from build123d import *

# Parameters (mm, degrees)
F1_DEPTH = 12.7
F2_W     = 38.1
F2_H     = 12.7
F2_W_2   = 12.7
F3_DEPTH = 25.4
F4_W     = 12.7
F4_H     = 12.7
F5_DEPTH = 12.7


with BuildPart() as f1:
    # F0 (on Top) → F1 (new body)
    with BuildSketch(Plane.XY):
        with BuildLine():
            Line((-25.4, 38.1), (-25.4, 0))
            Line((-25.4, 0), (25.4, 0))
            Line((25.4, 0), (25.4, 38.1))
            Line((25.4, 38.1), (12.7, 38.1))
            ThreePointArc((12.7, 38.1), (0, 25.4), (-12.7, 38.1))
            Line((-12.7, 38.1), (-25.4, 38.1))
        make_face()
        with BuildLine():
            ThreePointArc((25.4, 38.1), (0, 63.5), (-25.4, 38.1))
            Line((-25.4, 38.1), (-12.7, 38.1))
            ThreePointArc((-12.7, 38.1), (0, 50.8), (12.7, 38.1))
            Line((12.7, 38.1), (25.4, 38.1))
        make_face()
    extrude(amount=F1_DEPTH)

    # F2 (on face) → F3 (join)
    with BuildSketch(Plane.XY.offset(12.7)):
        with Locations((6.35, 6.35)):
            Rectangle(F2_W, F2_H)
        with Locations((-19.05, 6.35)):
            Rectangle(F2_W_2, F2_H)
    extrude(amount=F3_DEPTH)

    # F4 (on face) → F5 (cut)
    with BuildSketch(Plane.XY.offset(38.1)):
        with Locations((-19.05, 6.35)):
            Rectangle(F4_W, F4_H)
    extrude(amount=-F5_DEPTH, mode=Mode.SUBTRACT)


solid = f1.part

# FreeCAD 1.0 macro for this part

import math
import FreeCAD as App
import Part
import Sketcher
Q = App.Units.Quantity


def add_polygon(sketch, points):
    """Adds a closed chain of lines whose ends are joined by coincident constraints."""
    first, n = sketch.GeometryCount, len(points)
    for a, b in zip(points, points[1:] + points[:1]):
        sketch.addGeometry(Part.LineSegment(App.Vector(*a, 0), App.Vector(*b, 0)), False)
    for i in range(n):
        sketch.addConstraint(Sketcher.Constraint("Coincident", first + i, 2, first + (i + 1) % n, 1))

doc = App.newDocument("Part")
body = doc.addObject("PartDesign::Body", "Body")

sketch1 = doc.addObject("Sketcher::SketchObject", "Sketch")
body.addObject(sketch1)
sketch1.AttachmentSupport = (doc.XY_Plane, [""])
sketch1.MapMode = "FlatFace"
sketch1.addGeometry([
    Part.LineSegment(App.Vector(-25, 38, 0), App.Vector(-25, 0, 0)),
    Part.LineSegment(App.Vector(-25, 0, 0), App.Vector(25, 0, 0)),
    Part.LineSegment(App.Vector(25, 0, 0), App.Vector(25, 38, 0)),
    Part.ArcOfCircle(Part.Circle(App.Vector(0, 38, 0), App.Vector(0, 0, 1), 25), math.radians(0), math.radians(180)),
    Part.Circle(App.Vector(0, 38, 0), App.Vector(0, 0, 1), 13),
], False)
sketch1.addConstraint([
    Sketcher.Constraint("Coincident", 0, 2, 1, 1),
    Sketcher.Constraint("Coincident", 1, 2, 2, 1),
    Sketcher.Constraint("Tangent", 2, 2, 3, 1),
    Sketcher.Constraint("Tangent", 3, 2, 0, 1),
    Sketcher.Constraint("Vertical", 0),
    Sketcher.Constraint("Horizontal", 1),
    Sketcher.Constraint("Vertical", 2),
    Sketcher.Constraint("Coincident", 4, 3, 3, 3),
    Sketcher.Constraint("Symmetric", 0, 2, 1, 2, -1, 1),
    Sketcher.Constraint("Diameter", 4, Q("1 in")),
    Sketcher.Constraint("Radius", 3, Q("1 in")),
    Sketcher.Constraint("DistanceY", 0, 2, 0, 1, Q("1.5 in")),
])
pad1 = doc.addObject("PartDesign::Pad", "Pad")
body.addObject(pad1)
pad1.Profile = sketch1
pad1.Length = Q("0.5 in")

sketch2 = doc.addObject("Sketcher::SketchObject", "Sketch001")
body.addObject(sketch2)
sketch2.AttachmentSupport = (doc.XY_Plane, [""])
sketch2.MapMode = "FlatFace"
sketch2.AttachmentOffset = App.Placement(App.Vector(0, 0, 0.5 * 25.4), App.Rotation())
add_polygon(sketch2, [(25, 0), (25, 13), (-25, 13), (-25, 0)])
sketch2.addConstraint([
    Sketcher.Constraint("Vertical", 0),
    Sketcher.Constraint("Horizontal", 1),
    Sketcher.Constraint("Vertical", 2),
    Sketcher.Constraint("Horizontal", 3),
    Sketcher.Constraint("Symmetric", 2, 2, 3, 2, -1, 1),
    Sketcher.Constraint("DistanceX", 1, 2, 1, 1, Q("2 in")),
    Sketcher.Constraint("DistanceY", 0, 1, 0, 2, Q("0.5 in")),
])
pad2 = doc.addObject("PartDesign::Pad", "Pad001")
body.addObject(pad2)
pad2.Profile = sketch2
pad2.Length = Q("1 in")

sketch3 = doc.addObject("Sketcher::SketchObject", "Sketch002")
body.addObject(sketch3)
sketch3.AttachmentSupport = (doc.XY_Plane, [""])
sketch3.MapMode = "FlatFace"
sketch3.AttachmentOffset = App.Placement(App.Vector(0, 0, 1.5 * 25.4), App.Rotation())
add_polygon(sketch3, [(-25, 13), (-25, 0), (-13, 0), (-13, 13)])
sketch3.addConstraint([
    Sketcher.Constraint("Vertical", 0),
    Sketcher.Constraint("Horizontal", 1),
    Sketcher.Constraint("Vertical", 2),
    Sketcher.Constraint("Horizontal", 3),
    Sketcher.Constraint("PointOnObject", 0, 2, -1),
    Sketcher.Constraint("Equal", 3, 0),
    Sketcher.Constraint("DistanceX", 1, 1, 1, 2, Q("0.5 in")),
    Sketcher.Constraint("DistanceX", 0, 2, -1, 1, Q("1 in")),
])
pocket1 = doc.addObject("PartDesign::Pocket", "Pocket")
body.addObject(pocket1)
pocket1.Profile = sketch3
pocket1.Length = Q("0.5 in")

doc.recompute()
